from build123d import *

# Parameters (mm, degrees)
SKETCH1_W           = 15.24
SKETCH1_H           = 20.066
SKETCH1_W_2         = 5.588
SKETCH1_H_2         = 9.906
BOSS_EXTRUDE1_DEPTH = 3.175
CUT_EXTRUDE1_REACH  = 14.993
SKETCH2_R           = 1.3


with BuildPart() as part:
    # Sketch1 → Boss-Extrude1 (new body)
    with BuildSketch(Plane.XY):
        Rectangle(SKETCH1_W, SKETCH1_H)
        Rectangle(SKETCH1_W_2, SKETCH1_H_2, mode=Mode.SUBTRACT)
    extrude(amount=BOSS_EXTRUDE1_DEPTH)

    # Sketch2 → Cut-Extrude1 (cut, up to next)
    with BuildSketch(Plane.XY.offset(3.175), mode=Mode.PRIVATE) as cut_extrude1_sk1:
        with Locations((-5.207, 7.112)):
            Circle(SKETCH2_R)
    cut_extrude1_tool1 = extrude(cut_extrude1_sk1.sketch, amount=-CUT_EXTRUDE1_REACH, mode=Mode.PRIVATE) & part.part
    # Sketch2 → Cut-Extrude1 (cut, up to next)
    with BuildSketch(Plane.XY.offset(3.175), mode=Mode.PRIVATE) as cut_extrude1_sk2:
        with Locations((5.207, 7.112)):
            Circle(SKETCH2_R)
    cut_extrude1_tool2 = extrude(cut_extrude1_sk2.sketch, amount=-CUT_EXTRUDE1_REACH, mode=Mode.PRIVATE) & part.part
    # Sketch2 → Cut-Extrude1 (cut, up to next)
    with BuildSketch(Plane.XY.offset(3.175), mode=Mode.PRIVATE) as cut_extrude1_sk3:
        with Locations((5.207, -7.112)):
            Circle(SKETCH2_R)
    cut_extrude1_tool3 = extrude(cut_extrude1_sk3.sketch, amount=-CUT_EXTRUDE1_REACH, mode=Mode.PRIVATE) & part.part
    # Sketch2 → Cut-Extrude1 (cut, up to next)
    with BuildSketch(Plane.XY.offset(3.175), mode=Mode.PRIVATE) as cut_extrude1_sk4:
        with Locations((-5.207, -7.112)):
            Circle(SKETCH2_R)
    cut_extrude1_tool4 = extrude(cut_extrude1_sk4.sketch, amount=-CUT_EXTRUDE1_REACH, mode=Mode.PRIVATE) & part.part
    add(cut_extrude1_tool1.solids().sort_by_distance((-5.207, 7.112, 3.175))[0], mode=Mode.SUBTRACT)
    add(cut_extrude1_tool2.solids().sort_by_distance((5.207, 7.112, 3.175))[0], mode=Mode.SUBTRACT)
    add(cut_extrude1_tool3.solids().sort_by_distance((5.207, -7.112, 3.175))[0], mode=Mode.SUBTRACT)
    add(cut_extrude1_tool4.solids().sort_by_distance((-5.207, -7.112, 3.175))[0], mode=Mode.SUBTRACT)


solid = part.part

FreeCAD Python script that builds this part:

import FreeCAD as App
import Part
import Sketcher

V = App.Vector
Q = App.Units.Quantity

doc = App.newDocument("Part")
body = doc.addObject("PartDesign::Body", "Body")

# Sketch on XY plane
sketch1 = doc.addObject("Sketcher::SketchObject", "Sketch")
body.addObject(sketch1)
sketch1.AttachmentSupport = (doc.XY_Plane, [""])
sketch1.MapMode = "FlatFace"
sketch1.addGeometry([
    Part.LineSegment(V(-8, 10, 0), V(-8, -10, 0)),  # 0
    Part.LineSegment(V(-8, -10, 0), V(8, -10, 0)),  # 1
    Part.LineSegment(V(8, -10, 0), V(8, 10, 0)),  # 2
    Part.LineSegment(V(8, 10, 0), V(-8, 10, 0)),  # 3
    Part.LineSegment(V(3, -5, 0), V(-3, -5, 0)),  # 4
    Part.LineSegment(V(-3, -5, 0), V(-3, 5, 0)),  # 5
    Part.LineSegment(V(-3, 5, 0), V(3, 5, 0)),  # 6
    Part.LineSegment(V(3, 5, 0), V(3, -5, 0)),  # 7
], False)
sketch1.addConstraint([
    Sketcher.Constraint("Coincident", 0, 2, 1, 1),
    Sketcher.Constraint("Coincident", 1, 2, 2, 1),
    Sketcher.Constraint("Coincident", 2, 2, 3, 1),
    Sketcher.Constraint("Coincident", 3, 2, 0, 1),
    Sketcher.Constraint("Coincident", 4, 2, 5, 1),
    Sketcher.Constraint("Coincident", 5, 2, 6, 1),
    Sketcher.Constraint("Coincident", 6, 2, 7, 1),
    Sketcher.Constraint("Coincident", 7, 2, 4, 1),
    Sketcher.Constraint("Vertical", 0),
    Sketcher.Constraint("Horizontal", 1),
    Sketcher.Constraint("Vertical", 2),
    Sketcher.Constraint("Horizontal", 3),
    Sketcher.Constraint("Horizontal", 4),
    Sketcher.Constraint("Vertical", 5),
    Sketcher.Constraint("Horizontal", 6),
    Sketcher.Constraint("Vertical", 7),
    Sketcher.Constraint("Symmetric", 0, 2, 2, 2, -1, 1),
    Sketcher.Constraint("Symmetric", 4, 2, 6, 2, -1, 1),
    Sketcher.Constraint("DistanceX", 1, 1, 1, 2, Q("0.6 in")),
    Sketcher.Constraint("DistanceX", 4, 2, 4, 1, Q("0.22 in")),
    Sketcher.Constraint("DistanceY", 0, 2, 0, 1, Q("0.79 in")),
    Sketcher.Constraint("DistanceY", 5, 1, 5, 2, Q("0.39 in")),
])
pad1 = doc.addObject("PartDesign::Pad", "Pad")
body.addObject(pad1)
pad1.Profile = sketch1
pad1.Length = Q("0.125 in")

# Sketch on XY plane
sketch2 = doc.addObject("Sketcher::SketchObject", "Sketch001")
body.addObject(sketch2)
sketch2.AttachmentSupport = (doc.XY_Plane, [""])
sketch2.MapMode = "FlatFace"
sketch2.AttachmentOffset = App.Placement(V(0, 0, 0.125 * 25.4), App.Rotation())
sketch2.addGeometry(Part.Circle(V(-5.2, 7.1, 0), V(0, 0, 1), 1.3), False)
sketch2.addConstraint([
    Sketcher.Constraint("Diameter", 0, 2.6),
    Sketcher.Constraint("DistanceY", -1, 1, 0, 3, Q("0.28 in")),
    Sketcher.Constraint("DistanceX", 0, 3, -1, 1, Q("0.205 in")),
])
pocket1 = doc.addObject("PartDesign::Pocket", "Pocket")
body.addObject(pocket1)
pocket1.Profile = sketch2
pocket1.Type = "UpToFirst"

# Sketch on XY plane
sketch3 = doc.addObject("Sketcher::SketchObject", "Sketch002")
body.addObject(sketch3)
sketch3.AttachmentSupport = (doc.XY_Plane, [""])
sketch3.MapMode = "FlatFace"
sketch3.AttachmentOffset = App.Placement(V(0, 0, 0.125 * 25.4), App.Rotation())
sketch3.addGeometry(Part.Circle(V(5.2, 7.1, 0), V(0, 0, 1), 1.3), False)
sketch3.addConstraint([
    Sketcher.Constraint("Diameter", 0, 2.6),
    Sketcher.Constraint("DistanceY", -1, 1, 0, 3, Q("0.28 in")),
    Sketcher.Constraint("DistanceX", -1, 1, 0, 3, Q("0.205 in")),
])
pocket2 = doc.addObject("PartDesign::Pocket", "Pocket001")
body.addObject(pocket2)
pocket2.Profile = sketch3
pocket2.Type = "UpToFirst"

# Sketch on XY plane
sketch4 = doc.addObject("Sketcher::SketchObject", "Sketch003")
body.addObject(sketch4)
sketch4.AttachmentSupport = (doc.XY_Plane, [""])
sketch4.MapMode = "FlatFace"
sketch4.AttachmentOffset = App.Placement(V(0, 0, 0.125 * 25.4), App.Rotation())
sketch4.addGeometry(Part.Circle(V(5.2, -7.1, 0), V(0, 0, 1), 1.3), False)
sketch4.addConstraint([
    Sketcher.Constraint("Diameter", 0, 2.6),
    Sketcher.Constraint("DistanceY", 0, 3, -1, 1, Q("0.28 in")),
    Sketcher.Constraint("DistanceX", -1, 1, 0, 3, Q("0.205 in")),
])
pocket3 = doc.addObject("PartDesign::Pocket", "Pocket002")
body.addObject(pocket3)
pocket3.Profile = sketch4
pocket3.Type = "UpToFirst"

# Sketch on XY plane
sketch5 = doc.addObject("Sketcher::SketchObject", "Sketch004")
body.addObject(sketch5)
sketch5.AttachmentSupport = (doc.XY_Plane, [""])
sketch5.MapMode = "FlatFace"
sketch5.AttachmentOffset = App.Placement(V(0, 0, 0.125 * 25.4), App.Rotation())
sketch5.addGeometry(Part.Circle(V(-5.2, -7.1, 0), V(0, 0, 1), 1.3), False)
sketch5.addConstraint([
    Sketcher.Constraint("Diameter", 0, 2.6),
    Sketcher.Constraint("DistanceY", 0, 3, -1, 1, Q("0.28 in")),
    Sketcher.Constraint("DistanceX", 0, 3, -1, 1, Q("0.205 in")),
])
pocket4 = doc.addObject("PartDesign::Pocket", "Pocket003")
body.addObject(pocket4)
pocket4.Profile = sketch5
pocket4.Type = "UpToFirst"

doc.recompute()
